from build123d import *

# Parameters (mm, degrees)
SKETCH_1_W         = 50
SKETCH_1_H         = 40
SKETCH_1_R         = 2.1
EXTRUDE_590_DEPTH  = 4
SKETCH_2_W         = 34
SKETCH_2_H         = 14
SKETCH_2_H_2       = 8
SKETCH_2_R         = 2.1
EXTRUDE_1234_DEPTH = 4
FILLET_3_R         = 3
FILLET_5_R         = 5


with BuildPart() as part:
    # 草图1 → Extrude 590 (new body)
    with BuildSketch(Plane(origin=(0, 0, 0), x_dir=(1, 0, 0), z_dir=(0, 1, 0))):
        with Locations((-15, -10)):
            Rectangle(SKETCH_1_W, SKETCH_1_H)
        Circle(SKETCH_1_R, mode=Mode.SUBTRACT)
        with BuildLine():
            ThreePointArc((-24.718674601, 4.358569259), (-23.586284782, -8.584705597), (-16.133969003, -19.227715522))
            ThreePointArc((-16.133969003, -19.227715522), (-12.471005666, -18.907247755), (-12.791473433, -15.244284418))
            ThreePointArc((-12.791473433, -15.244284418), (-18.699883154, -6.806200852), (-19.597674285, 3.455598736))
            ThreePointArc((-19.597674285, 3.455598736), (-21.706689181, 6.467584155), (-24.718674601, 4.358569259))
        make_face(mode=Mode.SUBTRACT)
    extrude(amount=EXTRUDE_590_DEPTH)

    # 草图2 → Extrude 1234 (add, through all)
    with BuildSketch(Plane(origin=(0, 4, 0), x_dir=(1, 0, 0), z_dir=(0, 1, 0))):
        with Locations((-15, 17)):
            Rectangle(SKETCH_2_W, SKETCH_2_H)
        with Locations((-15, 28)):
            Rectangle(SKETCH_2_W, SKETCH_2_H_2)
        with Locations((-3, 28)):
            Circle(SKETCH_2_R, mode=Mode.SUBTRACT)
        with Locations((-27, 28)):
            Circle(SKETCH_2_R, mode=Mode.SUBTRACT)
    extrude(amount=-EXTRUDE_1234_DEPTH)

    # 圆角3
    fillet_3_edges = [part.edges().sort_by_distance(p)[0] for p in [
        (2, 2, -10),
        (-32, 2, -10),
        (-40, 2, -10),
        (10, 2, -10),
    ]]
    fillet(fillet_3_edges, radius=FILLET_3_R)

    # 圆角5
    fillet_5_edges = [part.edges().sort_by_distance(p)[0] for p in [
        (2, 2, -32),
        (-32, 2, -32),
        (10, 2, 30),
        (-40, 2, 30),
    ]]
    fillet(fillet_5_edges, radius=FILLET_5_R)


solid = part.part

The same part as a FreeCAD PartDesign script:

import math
import FreeCAD as App
import Part
import Sketcher
from FreeCAD import Vector
Q = App.Units.Quantity


def edges_at(feature, points):
    """Names of the edges that pass closest to the given points."""
    edges = feature.Shape.Edges
    near = lambda p: min(range(len(edges)), key=lambda i: edges[i].distToShape(Part.Vertex(*p))[0])
    return sorted({f"Edge{near(p) + 1}" for p in points})

doc = App.newDocument("Part")
body = doc.addObject("PartDesign::Body", "Body")

sketch1 = doc.addObject("Sketcher::SketchObject", "Sketch")
body.addObject(sketch1)
sketch1.AttachmentSupport = (doc.XZ_Plane, [""])
sketch1.MapMode = "FlatFace"
sketch1.addGeometry(Part.LineSegment(Vector(-40, -10, 0), Vector(-40, 30, 0)), False)
sketch1.addGeometry(Part.LineSegment(Vector(-40, 30, 0), Vector(10, 30, 0)), False)
sketch1.addGeometry(Part.LineSegment(Vector(10, 30, 0), Vector(10, -10, 0)), False)
sketch1.addGeometry(Part.LineSegment(Vector(10, -10, 0), Vector(-40, -10, 0)), False)
sketch1.addGeometry(Part.ArcOfCircle(Part.Circle(Vector(0, 0, 0), Vector(0, 0, 1), 25.1), math.radians(130), math.radians(190)), False)
sketch1.addGeometry(Part.ArcOfCircle(Part.Circle(Vector(-22.2, -3.9, 0), Vector(0, 0, 1), 2.6), math.radians(-170), math.radians(10)), False)
sketch1.addGeometry(Part.ArcOfCircle(Part.Circle(Vector(0, 0, 0), Vector(0, 0, 1), 19.9), math.radians(130), math.radians(190)), False)
sketch1.addGeometry(Part.ArcOfCircle(Part.Circle(Vector(-14.5, 17.2, 0), Vector(0, 0, 1), 2.6), math.radians(-50), math.radians(130)), False)
sketch1.addGeometry(Part.Circle(Vector(0, 0, 0), Vector(0, 0, 1), 2.1), False)
sketch1.addConstraint(Sketcher.Constraint("Coincident", 0, 2, 1, 1))
sketch1.addConstraint(Sketcher.Constraint("Coincident", 1, 2, 2, 1))
sketch1.addConstraint(Sketcher.Constraint("Coincident", 2, 2, 3, 1))
sketch1.addConstraint(Sketcher.Constraint("Coincident", 3, 2, 0, 1))
sketch1.addConstraint(Sketcher.Constraint("Tangent", 4, 2, 5, 1))
sketch1.addConstraint(Sketcher.Constraint("Tangent", 5, 2, 6, 2))
sketch1.addConstraint(Sketcher.Constraint("Tangent", 6, 1, 7, 1))
sketch1.addConstraint(Sketcher.Constraint("Tangent", 7, 2, 4, 1))
sketch1.addConstraint(Sketcher.Constraint("Vertical", 0))
sketch1.addConstraint(Sketcher.Constraint("Horizontal", 1))
sketch1.addConstraint(Sketcher.Constraint("Vertical", 2))
sketch1.addConstraint(Sketcher.Constraint("Horizontal", 3))
sketch1.addConstraint(Sketcher.Constraint("Coincident", 4, 3, -1, 1))
sketch1.addConstraint(Sketcher.Constraint("Coincident", 6, 3, -1, 1))
sketch1.addConstraint(Sketcher.Constraint("Coincident", 8, 3, -1, 1))
sketch1.addConstraint(Sketcher.Constraint("Diameter", 8, Q("4.2 mm")))
sketch1.addConstraint(Sketcher.Constraint("Radius", 4, Q("25.1 mm")))
sketch1.addConstraint(Sketcher.Constraint("Radius", 5, Q("2.6 mm")))
sketch1.addConstraint(Sketcher.Constraint("DistanceX", 1, 1, 1, 2, Q("50 mm")))
sketch1.addConstraint(Sketcher.Constraint("DistanceY", 0, 1, 0, 2, Q("40 mm")))
sketch1.addConstraint(Sketcher.Constraint("DistanceX", 0, 2, -1, 1, Q("40 mm")))
sketch1.addConstraint(Sketcher.Constraint("DistanceY", -1, 1, 0, 2, Q("30 mm")))
sketch1.addConstraint(Sketcher.Constraint("DistanceY", -1, 1, 7, 3, Q("17.236 mm")))
sketch1.addConstraint(Sketcher.Constraint("DistanceX", 4, 2, 5, 2, Q("5.121 mm")))
pad1 = doc.addObject("PartDesign::Pad", "Pad")
body.addObject(pad1)
pad1.Profile = sketch1
pad1.Length = 4
pad1.Reversed = True

sketch2 = doc.addObject("Sketcher::SketchObject", "Sketch001")
body.addObject(sketch2)
sketch2.AttachmentSupport = (doc.XZ_Plane, [""])
sketch2.MapMode = "FlatFace"
sketch2.AttachmentOffset = App.Placement(Vector(0, 0, -4), App.Rotation())
sketch2.addGeometry(Part.LineSegment(Vector(-32, -10, 0), Vector(2, -10, 0)), False)
sketch2.addGeometry(Part.LineSegment(Vector(2, -10, 0), Vector(2, -32, 0)), False)
sketch2.addGeometry(Part.LineSegment(Vector(2, -32, 0), Vector(-32, -32, 0)), False)
sketch2.addGeometry(Part.LineSegment(Vector(-32, -32, 0), Vector(-32, -10, 0)), False)
sketch2.addGeometry(Part.Circle(Vector(-27, -28, 0), Vector(0, 0, 1), 2.1), False)
sketch2.addGeometry(Part.Circle(Vector(-3, -28, 0), Vector(0, 0, 1), 2.1), False)
sketch2.addConstraint(Sketcher.Constraint("Coincident", 0, 2, 1, 1))
sketch2.addConstraint(Sketcher.Constraint("Coincident", 1, 2, 2, 1))
sketch2.addConstraint(Sketcher.Constraint("Coincident", 2, 2, 3, 1))
sketch2.addConstraint(Sketcher.Constraint("Coincident", 3, 2, 0, 1))
sketch2.addConstraint(Sketcher.Constraint("Horizontal", 0))
sketch2.addConstraint(Sketcher.Constraint("Vertical", 1))
sketch2.addConstraint(Sketcher.Constraint("Horizontal", 2))
sketch2.addConstraint(Sketcher.Constraint("Vertical", 3))
sketch2.addConstraint(Sketcher.Constraint("Equal", 4, 5))
sketch2.addConstraint(Sketcher.Constraint("Horizontal", 4, 3, 5, 3))
sketch2.addConstraint(Sketcher.Constraint("Diameter", 4, Q("4.2 mm")))
sketch2.addConstraint(Sketcher.Constraint("DistanceX", 0, 1, 0, 2, Q("34 mm")))
sketch2.addConstraint(Sketcher.Constraint("DistanceY", 1, 2, 1, 1, Q("22 mm")))
sketch2.addConstraint(Sketcher.Constraint("DistanceX", 4, 3, -1, 1, Q("27 mm")))
sketch2.addConstraint(Sketcher.Constraint("DistanceY", 4, 3, -1, 1, Q("28 mm")))
sketch2.addConstraint(Sketcher.Constraint("DistanceX", 5, 3, -1, 1, Q("3 mm")))
sketch2.addConstraint(Sketcher.Constraint("DistanceX", -1, 1, 0, 2, Q("2 mm")))
sketch2.addConstraint(Sketcher.Constraint("DistanceY", 0, 2, -1, 1, Q("10 mm")))
pad2 = doc.addObject("PartDesign::Pad", "Pad001")
body.addObject(pad2)
pad2.Profile = sketch2
pad2.Length = 4
doc.recompute()

fillet = doc.addObject("PartDesign::Fillet", "Fillet")
body.addObject(fillet)
fillet.Base = (pad2, edges_at(pad2, [
    (2, 2, -10),
    (-32, 2, -10),
    (-40, 2, -10),
    (10, 2, -10),
]))
fillet.Radius = 3
doc.recompute()

fillet2 = doc.addObject("PartDesign::Fillet", "Fillet001")
body.addObject(fillet2)
fillet2.Base = (fillet, edges_at(fillet, [
    (2, 2, -32),
    (-32, 2, -32),
    (10, 2, 30),
    (-40, 2, 30),
]))
fillet2.Radius = 5

doc.recompute()
